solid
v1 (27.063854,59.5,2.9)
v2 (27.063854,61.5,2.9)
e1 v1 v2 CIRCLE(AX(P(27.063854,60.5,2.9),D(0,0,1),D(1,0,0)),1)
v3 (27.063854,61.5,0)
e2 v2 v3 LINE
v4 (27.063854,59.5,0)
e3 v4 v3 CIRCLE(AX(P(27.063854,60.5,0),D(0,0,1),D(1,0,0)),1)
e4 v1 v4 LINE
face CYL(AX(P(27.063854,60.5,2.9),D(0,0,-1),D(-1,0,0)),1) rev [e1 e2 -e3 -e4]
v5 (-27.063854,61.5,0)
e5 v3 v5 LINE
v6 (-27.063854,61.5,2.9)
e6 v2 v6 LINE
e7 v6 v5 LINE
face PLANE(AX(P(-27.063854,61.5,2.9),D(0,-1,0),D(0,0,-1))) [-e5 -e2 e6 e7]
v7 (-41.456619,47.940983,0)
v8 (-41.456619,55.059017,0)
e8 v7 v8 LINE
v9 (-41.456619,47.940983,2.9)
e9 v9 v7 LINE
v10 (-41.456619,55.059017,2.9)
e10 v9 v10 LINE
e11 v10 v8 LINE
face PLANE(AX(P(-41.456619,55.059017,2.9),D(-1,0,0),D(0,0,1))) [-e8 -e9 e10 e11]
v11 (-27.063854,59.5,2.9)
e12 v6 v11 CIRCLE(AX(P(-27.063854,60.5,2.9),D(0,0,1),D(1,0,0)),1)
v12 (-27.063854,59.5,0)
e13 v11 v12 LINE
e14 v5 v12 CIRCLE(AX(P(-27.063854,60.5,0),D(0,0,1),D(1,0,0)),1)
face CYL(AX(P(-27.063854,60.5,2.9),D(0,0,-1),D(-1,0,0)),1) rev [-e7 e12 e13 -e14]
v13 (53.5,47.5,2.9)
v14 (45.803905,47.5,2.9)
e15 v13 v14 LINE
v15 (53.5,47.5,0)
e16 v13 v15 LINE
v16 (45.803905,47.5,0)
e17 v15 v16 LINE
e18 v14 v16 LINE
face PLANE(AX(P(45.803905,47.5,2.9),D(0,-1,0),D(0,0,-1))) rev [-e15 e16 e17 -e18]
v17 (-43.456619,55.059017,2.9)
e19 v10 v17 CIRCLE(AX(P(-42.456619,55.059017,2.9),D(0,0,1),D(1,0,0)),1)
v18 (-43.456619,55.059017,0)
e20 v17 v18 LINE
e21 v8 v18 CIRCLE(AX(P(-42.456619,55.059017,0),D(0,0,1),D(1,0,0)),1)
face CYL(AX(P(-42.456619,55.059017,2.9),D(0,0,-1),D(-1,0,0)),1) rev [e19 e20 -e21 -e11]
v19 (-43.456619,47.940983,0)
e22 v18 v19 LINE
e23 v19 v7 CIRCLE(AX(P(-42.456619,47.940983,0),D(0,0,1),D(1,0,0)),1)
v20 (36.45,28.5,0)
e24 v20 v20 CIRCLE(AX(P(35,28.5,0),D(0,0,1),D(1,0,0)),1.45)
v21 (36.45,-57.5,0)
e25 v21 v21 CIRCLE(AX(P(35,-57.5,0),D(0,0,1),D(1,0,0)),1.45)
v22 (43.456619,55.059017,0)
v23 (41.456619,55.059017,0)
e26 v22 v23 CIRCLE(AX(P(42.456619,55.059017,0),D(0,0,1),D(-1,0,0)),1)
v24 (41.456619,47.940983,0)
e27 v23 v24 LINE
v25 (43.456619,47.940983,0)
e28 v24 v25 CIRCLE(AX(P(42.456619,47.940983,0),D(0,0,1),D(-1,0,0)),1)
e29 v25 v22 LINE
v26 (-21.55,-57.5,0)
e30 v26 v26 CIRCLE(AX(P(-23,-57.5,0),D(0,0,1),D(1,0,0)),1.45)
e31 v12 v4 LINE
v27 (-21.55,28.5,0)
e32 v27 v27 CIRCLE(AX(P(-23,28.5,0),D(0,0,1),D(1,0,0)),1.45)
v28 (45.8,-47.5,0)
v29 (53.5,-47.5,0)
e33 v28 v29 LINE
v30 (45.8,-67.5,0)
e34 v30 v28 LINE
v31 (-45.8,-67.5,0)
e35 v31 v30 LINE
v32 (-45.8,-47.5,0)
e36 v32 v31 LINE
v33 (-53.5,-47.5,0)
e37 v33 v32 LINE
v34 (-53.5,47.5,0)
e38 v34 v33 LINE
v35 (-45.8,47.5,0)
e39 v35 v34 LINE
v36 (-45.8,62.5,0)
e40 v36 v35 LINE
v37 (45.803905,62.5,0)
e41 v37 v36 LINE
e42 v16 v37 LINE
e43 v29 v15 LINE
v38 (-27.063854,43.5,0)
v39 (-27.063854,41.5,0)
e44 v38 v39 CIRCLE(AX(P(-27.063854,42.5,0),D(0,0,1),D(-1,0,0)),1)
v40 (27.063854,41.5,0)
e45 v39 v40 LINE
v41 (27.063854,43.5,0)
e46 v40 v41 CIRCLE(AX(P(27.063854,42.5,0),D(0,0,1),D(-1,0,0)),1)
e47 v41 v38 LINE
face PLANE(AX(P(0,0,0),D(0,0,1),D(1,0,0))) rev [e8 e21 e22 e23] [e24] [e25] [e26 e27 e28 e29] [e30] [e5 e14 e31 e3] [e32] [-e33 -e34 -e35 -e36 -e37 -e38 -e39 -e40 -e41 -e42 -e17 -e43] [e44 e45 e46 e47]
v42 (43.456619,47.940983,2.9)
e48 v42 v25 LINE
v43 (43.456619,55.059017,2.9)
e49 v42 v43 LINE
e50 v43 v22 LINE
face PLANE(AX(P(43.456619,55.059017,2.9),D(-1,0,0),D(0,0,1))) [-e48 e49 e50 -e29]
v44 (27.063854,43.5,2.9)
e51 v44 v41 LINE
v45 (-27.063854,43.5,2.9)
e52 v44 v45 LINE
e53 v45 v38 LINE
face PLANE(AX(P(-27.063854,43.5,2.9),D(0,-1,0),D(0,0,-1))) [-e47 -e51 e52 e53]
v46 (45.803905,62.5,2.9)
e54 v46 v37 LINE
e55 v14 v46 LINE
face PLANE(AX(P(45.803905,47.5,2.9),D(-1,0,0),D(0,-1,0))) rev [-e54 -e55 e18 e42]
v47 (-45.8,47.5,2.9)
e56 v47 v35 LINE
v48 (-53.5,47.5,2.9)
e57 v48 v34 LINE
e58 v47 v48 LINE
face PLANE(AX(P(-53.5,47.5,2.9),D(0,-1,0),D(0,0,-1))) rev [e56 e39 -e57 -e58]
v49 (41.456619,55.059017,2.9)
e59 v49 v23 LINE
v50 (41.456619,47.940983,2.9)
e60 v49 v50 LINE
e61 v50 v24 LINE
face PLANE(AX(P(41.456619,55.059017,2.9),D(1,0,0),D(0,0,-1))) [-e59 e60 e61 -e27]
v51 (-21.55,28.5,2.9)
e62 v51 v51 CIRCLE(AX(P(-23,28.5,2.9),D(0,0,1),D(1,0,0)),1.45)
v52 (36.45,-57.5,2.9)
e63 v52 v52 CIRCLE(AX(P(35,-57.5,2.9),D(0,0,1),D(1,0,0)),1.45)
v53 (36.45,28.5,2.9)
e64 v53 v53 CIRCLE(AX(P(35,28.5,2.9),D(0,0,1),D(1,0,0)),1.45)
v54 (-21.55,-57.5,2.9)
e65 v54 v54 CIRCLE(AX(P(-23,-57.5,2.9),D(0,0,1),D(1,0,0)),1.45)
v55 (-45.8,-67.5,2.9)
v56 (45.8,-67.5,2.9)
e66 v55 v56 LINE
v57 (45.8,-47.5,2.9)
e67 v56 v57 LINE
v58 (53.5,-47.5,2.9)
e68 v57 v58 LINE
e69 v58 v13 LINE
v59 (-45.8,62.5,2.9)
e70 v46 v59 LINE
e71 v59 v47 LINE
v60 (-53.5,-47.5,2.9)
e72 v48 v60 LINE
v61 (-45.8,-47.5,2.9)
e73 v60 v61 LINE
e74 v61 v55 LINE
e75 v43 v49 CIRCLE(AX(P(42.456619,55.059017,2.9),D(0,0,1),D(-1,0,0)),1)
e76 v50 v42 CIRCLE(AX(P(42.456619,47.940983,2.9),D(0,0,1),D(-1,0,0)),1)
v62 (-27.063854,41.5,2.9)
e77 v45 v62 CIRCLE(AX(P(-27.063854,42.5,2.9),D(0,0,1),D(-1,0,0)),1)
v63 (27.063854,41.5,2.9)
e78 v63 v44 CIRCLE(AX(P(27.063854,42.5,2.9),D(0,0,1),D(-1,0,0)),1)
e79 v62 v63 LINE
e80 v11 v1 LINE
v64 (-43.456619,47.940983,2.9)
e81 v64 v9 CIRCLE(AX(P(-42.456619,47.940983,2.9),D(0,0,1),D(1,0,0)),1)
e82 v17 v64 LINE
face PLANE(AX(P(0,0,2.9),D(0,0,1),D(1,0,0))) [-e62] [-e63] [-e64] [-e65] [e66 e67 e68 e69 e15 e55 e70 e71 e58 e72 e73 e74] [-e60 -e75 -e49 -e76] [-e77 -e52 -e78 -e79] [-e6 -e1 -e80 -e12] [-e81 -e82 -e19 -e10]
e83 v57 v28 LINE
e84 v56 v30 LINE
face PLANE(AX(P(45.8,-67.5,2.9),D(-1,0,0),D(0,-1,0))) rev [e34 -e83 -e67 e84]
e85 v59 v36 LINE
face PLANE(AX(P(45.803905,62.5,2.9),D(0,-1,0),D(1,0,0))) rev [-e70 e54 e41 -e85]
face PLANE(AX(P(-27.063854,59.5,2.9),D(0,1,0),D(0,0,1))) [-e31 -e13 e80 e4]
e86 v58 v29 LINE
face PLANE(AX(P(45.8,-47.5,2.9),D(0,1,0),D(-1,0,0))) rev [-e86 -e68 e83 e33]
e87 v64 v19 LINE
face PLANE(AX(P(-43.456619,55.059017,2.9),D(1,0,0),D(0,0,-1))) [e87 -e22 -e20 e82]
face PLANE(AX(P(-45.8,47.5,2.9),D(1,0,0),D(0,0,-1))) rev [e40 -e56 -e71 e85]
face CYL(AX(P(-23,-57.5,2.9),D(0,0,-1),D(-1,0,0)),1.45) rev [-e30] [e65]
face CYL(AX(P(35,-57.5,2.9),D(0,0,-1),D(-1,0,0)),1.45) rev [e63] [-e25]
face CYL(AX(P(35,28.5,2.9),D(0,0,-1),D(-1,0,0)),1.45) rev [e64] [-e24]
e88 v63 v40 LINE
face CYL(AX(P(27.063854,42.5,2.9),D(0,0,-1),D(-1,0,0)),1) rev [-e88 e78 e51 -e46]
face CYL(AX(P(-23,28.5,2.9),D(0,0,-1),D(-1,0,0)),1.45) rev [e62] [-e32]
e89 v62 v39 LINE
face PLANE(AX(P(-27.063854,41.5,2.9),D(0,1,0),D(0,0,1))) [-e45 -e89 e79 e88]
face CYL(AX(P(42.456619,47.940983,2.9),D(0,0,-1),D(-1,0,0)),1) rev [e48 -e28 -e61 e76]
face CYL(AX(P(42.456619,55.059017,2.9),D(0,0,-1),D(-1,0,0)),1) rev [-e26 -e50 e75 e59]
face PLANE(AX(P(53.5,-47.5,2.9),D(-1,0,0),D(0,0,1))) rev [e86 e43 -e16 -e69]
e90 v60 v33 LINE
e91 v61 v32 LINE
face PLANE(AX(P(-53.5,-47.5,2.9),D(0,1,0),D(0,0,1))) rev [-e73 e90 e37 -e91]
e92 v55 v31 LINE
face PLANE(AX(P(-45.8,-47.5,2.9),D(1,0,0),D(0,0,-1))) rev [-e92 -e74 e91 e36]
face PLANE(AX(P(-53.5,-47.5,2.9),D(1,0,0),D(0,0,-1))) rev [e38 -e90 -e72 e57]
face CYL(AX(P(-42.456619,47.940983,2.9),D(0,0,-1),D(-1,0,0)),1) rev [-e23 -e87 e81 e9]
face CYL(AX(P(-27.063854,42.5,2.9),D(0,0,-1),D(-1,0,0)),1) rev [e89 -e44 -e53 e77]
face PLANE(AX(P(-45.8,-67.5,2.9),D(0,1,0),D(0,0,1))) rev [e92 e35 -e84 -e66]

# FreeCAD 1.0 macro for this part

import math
import FreeCAD as App
import Part
import Sketcher

doc = App.newDocument("Part")
body = doc.addObject("PartDesign::Body", "Body")

# Sketch on XY plane
sketch1 = doc.addObject("Sketcher::SketchObject", "Sketch")
body.addObject(sketch1)
sketch1.AttachmentSupport = (doc.XY_Plane, [""])
sketch1.MapMode = "FlatFace"
sketch1.addGeometry(Part.LineSegment(App.Vector(-53.5, -47.5, 0), App.Vector(-45.8, -47.5, 0)), False)
sketch1.addGeometry(Part.LineSegment(App.Vector(-45.8, -47.5, 0), App.Vector(-45.8, -67.5, 0)), False)
sketch1.addGeometry(Part.LineSegment(App.Vector(-45.8, -67.5, 0), App.Vector(45.8, -67.5, 0)), False)
sketch1.addGeometry(Part.LineSegment(App.Vector(45.8, -67.5, 0), App.Vector(45.8, -47.5, 0)), False)
sketch1.addGeometry(Part.LineSegment(App.Vector(45.8, -47.5, 0), App.Vector(53.5, -47.5, 0)), False)
sketch1.addGeometry(Part.LineSegment(App.Vector(53.5, -47.5, 0), App.Vector(53.5, 47.5, 0)), False)
sketch1.addGeometry(Part.LineSegment(App.Vector(53.5, 47.5, 0), App.Vector(45.8, 47.5, 0)), False)
sketch1.addGeometry(Part.LineSegment(App.Vector(45.8, 47.5, 0), App.Vector(45.8, 62.5, 0)), False)
sketch1.addGeometry(Part.LineSegment(App.Vector(45.8, 62.5, 0), App.Vector(-45.8, 62.5, 0)), False)
sketch1.addGeometry(Part.LineSegment(App.Vector(-45.8, 62.5, 0), App.Vector(-45.8, 47.5, 0)), False)
sketch1.addGeometry(Part.LineSegment(App.Vector(-45.8, 47.5, 0), App.Vector(-53.5, 47.5, 0)), False)
sketch1.addGeometry(Part.LineSegment(App.Vector(-53.5, 47.5, 0), App.Vector(-53.5, -47.5, 0)), False)
sketch1.addGeometry(Part.Circle(App.Vector(-23, -57.5, 0), App.Vector(0, 0, 1), 1.4), False)
sketch1.addGeometry(Part.Circle(App.Vector(35, -57.5, 0), App.Vector(0, 0, 1), 1.4), False)
sketch1.addGeometry(Part.Circle(App.Vector(-23, 28.5, 0), App.Vector(0, 0, 1), 1.4), False)
sketch1.addGeometry(Part.ArcOfCircle(Part.Circle(App.Vector(-42.5, 55.1, 0), App.Vector(0, 0, 1), 1), math.radians(0), math.radians(180)), False)
sketch1.addGeometry(Part.LineSegment(App.Vector(-41.5, 55.1, 0), App.Vector(-41.5, 47.9, 0)), False)
sketch1.addGeometry(Part.ArcOfCircle(Part.Circle(App.Vector(-42.5, 47.9, 0), App.Vector(0, 0, 1), 1), math.radians(180), math.radians(360)), False)
sketch1.addGeometry(Part.LineSegment(App.Vector(-43.5, 47.9, 0), App.Vector(-43.5, 55.1, 0)), False)
sketch1.addGeometry(Part.Circle(App.Vector(35, 28.5, 0), App.Vector(0, 0, 1), 1.4), False)
sketch1.addGeometry(Part.LineSegment(App.Vector(27.1, 41.5, 0), App.Vector(-27.1, 41.5, 0)), False)
sketch1.addGeometry(Part.ArcOfCircle(Part.Circle(App.Vector(-27.1, 42.5, 0), App.Vector(0, 0, 1), 1), math.radians(90), math.radians(270)), False)
sketch1.addGeometry(Part.LineSegment(App.Vector(-27.1, 43.5, 0), App.Vector(27.1, 43.5, 0)), False)
sketch1.addGeometry(Part.ArcOfCircle(Part.Circle(App.Vector(27.1, 42.5, 0), App.Vector(0, 0, 1), 1), math.radians(-90), math.radians(90)), False)
sketch1.addGeometry(Part.ArcOfCircle(Part.Circle(App.Vector(-27.1, 60.5, 0), App.Vector(0, 0, 1), 1), math.radians(90), math.radians(270)), False)
sketch1.addGeometry(Part.LineSegment(App.Vector(-27.1, 61.5, 0), App.Vector(27.1, 61.5, 0)), False)
sketch1.addGeometry(Part.ArcOfCircle(Part.Circle(App.Vector(27.1, 60.5, 0), App.Vector(0, 0, 1), 1), math.radians(-90), math.radians(90)), False)
sketch1.addGeometry(Part.LineSegment(App.Vector(27.1, 59.5, 0), App.Vector(-27.1, 59.5, 0)), False)
sketch1.addGeometry(Part.LineSegment(App.Vector(41.5, 47.9, 0), App.Vector(41.5, 55.1, 0)), False)
sketch1.addGeometry(Part.ArcOfCircle(Part.Circle(App.Vector(42.5, 55.1, 0), App.Vector(0, 0, 1), 1), math.radians(0), math.radians(180)), False)
sketch1.addGeometry(Part.LineSegment(App.Vector(43.5, 55.1, 0), App.Vector(43.5, 47.9, 0)), False)
sketch1.addGeometry(Part.ArcOfCircle(Part.Circle(App.Vector(42.5, 47.9, 0), App.Vector(0, 0, 1), 1), math.radians(180), math.radians(360)), False)
sketch1.addConstraint(Sketcher.Constraint("Coincident", 0, 2, 1, 1))
sketch1.addConstraint(Sketcher.Constraint("Coincident", 1, 2, 2, 1))
sketch1.addConstraint(Sketcher.Constraint("Coincident", 2, 2, 3, 1))
sketch1.addConstraint(Sketcher.Constraint("Coincident", 3, 2, 4, 1))
sketch1.addConstraint(Sketcher.Constraint("Coincident", 4, 2, 5, 1))
sketch1.addConstraint(Sketcher.Constraint("Coincident", 5, 2, 6, 1))
sketch1.addConstraint(Sketcher.Constraint("Coincident", 6, 2, 7, 1))
sketch1.addConstraint(Sketcher.Constraint("Coincident", 7, 2, 8, 1))
sketch1.addConstraint(Sketcher.Constraint("Coincident", 8, 2, 9, 1))
sketch1.addConstraint(Sketcher.Constraint("Coincident", 9, 2, 10, 1))
sketch1.addConstraint(Sketcher.Constraint("Coincident", 10, 2, 11, 1))
sketch1.addConstraint(Sketcher.Constraint("Coincident", 11, 2, 0, 1))
sketch1.addConstraint(Sketcher.Constraint("Tangent", 15, 1, 16, 1))
sketch1.addConstraint(Sketcher.Constraint("Tangent", 16, 2, 17, 2))
sketch1.addConstraint(Sketcher.Constraint("Tangent", 17, 1, 18, 1))
sketch1.addConstraint(Sketcher.Constraint("Tangent", 18, 2, 15, 2))
sketch1.addConstraint(Sketcher.Constraint("Tangent", 20, 2, 21, 2))
sketch1.addConstraint(Sketcher.Constraint("Tangent", 21, 1, 22, 1))
sketch1.addConstraint(Sketcher.Constraint("Tangent", 22, 2, 23, 2))
sketch1.addConstraint(Sketcher.Constraint("Tangent", 23, 1, 20, 1))
sketch1.addConstraint(Sketcher.Constraint("Tangent", 24, 1, 25, 1))
sketch1.addConstraint(Sketcher.Constraint("Tangent", 25, 2, 26, 2))
sketch1.addConstraint(Sketcher.Constraint("Tangent", 26, 1, 27, 1))
sketch1.addConstraint(Sketcher.Constraint("Tangent", 27, 2, 24, 2))
sketch1.addConstraint(Sketcher.Constraint("Tangent", 28, 2, 29, 2))
sketch1.addConstraint(Sketcher.Constraint("Tangent", 29, 1, 30, 1))
sketch1.addConstraint(Sketcher.Constraint("Tangent", 30, 2, 31, 2))
sketch1.addConstraint(Sketcher.Constraint("Tangent", 31, 1, 28, 1))
sketch1.addConstraint(Sketcher.Constraint("Horizontal", 0))
sketch1.addConstraint(Sketcher.Constraint("Vertical", 1))
sketch1.addConstraint(Sketcher.Constraint("Horizontal", 2))
sketch1.addConstraint(Sketcher.Constraint("Vertical", 3))
sketch1.addConstraint(Sketcher.Constraint("Horizontal", 4))
sketch1.addConstraint(Sketcher.Constraint("Vertical", 5))
sketch1.addConstraint(Sketcher.Constraint("Horizontal", 6))
sketch1.addConstraint(Sketcher.Constraint("Vertical", 7))
sketch1.addConstraint(Sketcher.Constraint("Horizontal", 8))
sketch1.addConstraint(Sketcher.Constraint("Vertical", 9))
sketch1.addConstraint(Sketcher.Constraint("Horizontal", 10))
sketch1.addConstraint(Sketcher.Constraint("Vertical", 11))
sketch1.addConstraint(Sketcher.Constraint("Vertical", 16))
sketch1.addConstraint(Sketcher.Constraint("Vertical", 18))
sketch1.addConstraint(Sketcher.Constraint("Horizontal", 20))
sketch1.addConstraint(Sketcher.Constraint("Horizontal", 22))
sketch1.addConstraint(Sketcher.Constraint("Horizontal", 25))
sketch1.addConstraint(Sketcher.Constraint("Horizontal", 27))
sketch1.addConstraint(Sketcher.Constraint("Vertical", 28))
sketch1.addConstraint(Sketcher.Constraint("Vertical", 30))
sketch1.addConstraint(Sketcher.Constraint("Equal", 12, 13))
sketch1.addConstraint(Sketcher.Constraint("Equal", 13, 14))
sketch1.addConstraint(Sketcher.Constraint("Equal", 14, 19))
sketch1.addConstraint(Sketcher.Constraint("Equal", 17, 21))
sketch1.addConstraint(Sketcher.Constraint("Equal", 23, 24))
sketch1.addConstraint(Sketcher.Constraint("Equal", 26, 29))
sketch1.addConstraint(Sketcher.Constraint("Symmetric", 3, 2, 9, 2, -1, 1))
sketch1.addConstraint(Sketcher.Constraint("Symmetric", 5, 2, 11, 2, -1, 1))
sketch1.addConstraint(Sketcher.Constraint("Symmetric", 15, 3, 29, 3, -2))
sketch1.addConstraint(Sketcher.Constraint("Symmetric", 0, 2, 3, 2, -2))
sketch1.addConstraint(Sketcher.Constraint("Horizontal", 12, 3, 13, 3))
sketch1.addConstraint(Sketcher.Constraint("Horizontal", 14, 3, 19, 3))
sketch1.addConstraint(Sketcher.Constraint("Horizontal", 17, 3, 31, 3))
sketch1.addConstraint(Sketcher.Constraint("Vertical", 12, 3, 14, 3))
sketch1.addConstraint(Sketcher.Constraint("Vertical", 13, 3, 19, 3))
sketch1.addConstraint(Sketcher.Constraint("Vertical", 21, 3, 24, 3))
sketch1.addConstraint(Sketcher.Constraint("Vertical", 23, 3, 26, 3))
sketch1.addConstraint(Sketcher.Constraint("Radius", 15, 1.0))
sketch1.addConstraint(Sketcher.Constraint("Diameter", 12, 2.9))
sketch1.addConstraint(Sketcher.Constraint("DistanceY", 1, 2, 1, 1, 20.0))
sketch1.addConstraint(Sketcher.Constraint("DistanceY", 5, 1, 5, 2, 95.0))
sketch1.addConstraint(Sketcher.Constraint("DistanceY", 7, 1, 7, 2, 15.0))
sketch1.addConstraint(Sketcher.Constraint("DistanceX", 0, 1, 0, 2, 7.7))
sketch1.addConstraint(Sketcher.Constraint("DistanceX", 2, 1, 2, 2, 91.6))
sketch1.addConstraint(Sketcher.Constraint("DistanceX", 12, 3, -1, 1, 23.0))
sketch1.addConstraint(Sketcher.Constraint("DistanceX", -1, 1, 13, 3, 35.0))
sketch1.addConstraint(Sketcher.Constraint("DistanceY", 12, 3, 14, 3, 86.0))
sketch1.addConstraint(Sketcher.Constraint("DistanceY", 14, 3, 21, 3, 14.0))
sketch1.addConstraint(Sketcher.Constraint("DistanceY", 21, 3, 24, 3, 18.0))
sketch1.addConstraint(Sketcher.Constraint("DistanceY", 12, 3, 0, 2, 10.0))
sketch1.addConstraint(Sketcher.Constraint("DistanceX", 20, 2, 20, 1, 54.127709))
sketch1.addConstraint(Sketcher.Constraint("DistanceX", 6, 2, 6, 1, 7.696095))
sketch1.addConstraint(Sketcher.Constraint("DistanceY", 16, 2, 16, 1, 7.118035))
sketch1.addConstraint(Sketcher.Constraint("DistanceX", 15, 3, -1, 1, 42.456619))
sketch1.addConstraint(Sketcher.Constraint("DistanceX", 23, 3, 6, 2, 18.740051))
sketch1.addConstraint(Sketcher.Constraint("DistanceY", -1, 1, 15, 3, 55.059017))
pad1 = doc.addObject("PartDesign::Pad", "Pad")
body.addObject(pad1)
pad1.Profile = sketch1
pad1.Length = 2.9

doc.recompute()
